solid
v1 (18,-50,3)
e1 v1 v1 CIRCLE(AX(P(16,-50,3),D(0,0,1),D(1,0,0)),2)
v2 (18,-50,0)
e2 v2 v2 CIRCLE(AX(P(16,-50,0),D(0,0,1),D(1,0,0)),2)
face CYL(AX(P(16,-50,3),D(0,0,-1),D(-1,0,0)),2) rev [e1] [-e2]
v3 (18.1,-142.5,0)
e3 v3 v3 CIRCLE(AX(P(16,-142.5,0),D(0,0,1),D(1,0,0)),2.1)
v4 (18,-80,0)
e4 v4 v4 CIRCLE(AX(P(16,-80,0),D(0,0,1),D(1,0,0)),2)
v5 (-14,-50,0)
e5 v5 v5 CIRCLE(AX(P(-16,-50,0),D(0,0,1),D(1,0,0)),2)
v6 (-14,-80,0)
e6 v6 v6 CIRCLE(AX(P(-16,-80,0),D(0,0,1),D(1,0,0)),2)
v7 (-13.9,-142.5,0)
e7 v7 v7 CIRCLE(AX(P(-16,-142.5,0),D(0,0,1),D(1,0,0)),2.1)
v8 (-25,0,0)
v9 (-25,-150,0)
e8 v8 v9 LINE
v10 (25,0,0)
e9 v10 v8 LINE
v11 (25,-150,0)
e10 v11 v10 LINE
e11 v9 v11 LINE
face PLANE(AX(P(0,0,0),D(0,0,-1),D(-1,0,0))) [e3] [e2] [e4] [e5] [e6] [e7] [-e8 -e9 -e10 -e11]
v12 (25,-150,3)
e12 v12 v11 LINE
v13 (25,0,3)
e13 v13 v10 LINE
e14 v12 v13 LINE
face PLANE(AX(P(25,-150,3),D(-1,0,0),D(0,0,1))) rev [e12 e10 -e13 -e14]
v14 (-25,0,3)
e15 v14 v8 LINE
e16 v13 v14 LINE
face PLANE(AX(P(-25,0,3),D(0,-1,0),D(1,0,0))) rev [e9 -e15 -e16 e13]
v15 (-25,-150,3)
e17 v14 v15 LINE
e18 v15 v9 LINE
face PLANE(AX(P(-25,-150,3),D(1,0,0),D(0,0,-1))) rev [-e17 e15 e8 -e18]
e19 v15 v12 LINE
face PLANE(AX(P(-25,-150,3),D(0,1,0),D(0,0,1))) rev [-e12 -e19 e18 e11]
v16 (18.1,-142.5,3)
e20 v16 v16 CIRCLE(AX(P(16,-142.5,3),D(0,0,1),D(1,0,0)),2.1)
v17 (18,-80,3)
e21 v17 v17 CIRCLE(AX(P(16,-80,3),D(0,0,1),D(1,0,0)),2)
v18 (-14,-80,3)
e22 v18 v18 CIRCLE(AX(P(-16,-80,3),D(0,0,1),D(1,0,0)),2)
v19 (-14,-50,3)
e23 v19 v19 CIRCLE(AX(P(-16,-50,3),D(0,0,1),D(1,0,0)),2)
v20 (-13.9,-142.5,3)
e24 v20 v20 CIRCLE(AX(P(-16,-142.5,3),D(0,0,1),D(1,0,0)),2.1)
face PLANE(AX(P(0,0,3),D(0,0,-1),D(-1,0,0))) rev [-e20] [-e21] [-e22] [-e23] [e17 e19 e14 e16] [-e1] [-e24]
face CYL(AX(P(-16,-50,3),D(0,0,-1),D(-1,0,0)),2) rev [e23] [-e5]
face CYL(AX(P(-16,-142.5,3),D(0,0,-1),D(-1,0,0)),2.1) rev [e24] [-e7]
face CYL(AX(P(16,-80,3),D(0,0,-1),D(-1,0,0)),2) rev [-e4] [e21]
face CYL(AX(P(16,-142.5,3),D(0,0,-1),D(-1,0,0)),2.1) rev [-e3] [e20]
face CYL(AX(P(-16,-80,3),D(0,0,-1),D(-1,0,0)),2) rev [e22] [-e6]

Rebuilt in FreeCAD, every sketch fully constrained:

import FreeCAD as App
import Part
import Sketcher
from FreeCAD import Vector
Q = App.Units.Quantity

doc = App.newDocument("Part")
body = doc.addObject("PartDesign::Body", "Body")

# Sketch on XY plane
sketch1 = body.newObject("Sketcher::SketchObject", "Sketch")
sketch1.AttachmentSupport = (doc.getObject("XY_Plane"), [""])
sketch1.MapMode = "FlatFace"
sketch1.addGeometry([
    Part.LineSegment(Vector(-25, 0, 0), Vector(-25, -150, 0)),
    Part.LineSegment(Vector(-25, -150, 0), Vector(25, -150, 0)),
    Part.LineSegment(Vector(25, -150, 0), Vector(25, 0, 0)),
    Part.LineSegment(Vector(25, 0, 0), Vector(-25, 0, 0)),
], False)
sketch1.addConstraint([
    Sketcher.Constraint("Coincident", 0, 2, 1, 1),
    Sketcher.Constraint("Coincident", 1, 2, 2, 1),
    Sketcher.Constraint("Coincident", 2, 2, 3, 1),
    Sketcher.Constraint("Coincident", 3, 2, 0, 1),
    Sketcher.Constraint("Vertical", 0),
    Sketcher.Constraint("Horizontal", 1),
    Sketcher.Constraint("Vertical", 2),
    Sketcher.Constraint("Horizontal", 3),
    Sketcher.Constraint("Symmetric", 2, 2, 3, 2, -1, 1),
    Sketcher.Constraint("DistanceX", 1, 1, 1, 2, Q("50 mm")),
    Sketcher.Constraint("DistanceY", 0, 2, 0, 1, Q("150 mm")),
])
pad1 = body.newObject("PartDesign::Pad", "Pad")
pad1.Profile = sketch1
pad1.Length = 3

# Sketch on XY plane
sketch2 = body.newObject("Sketcher::SketchObject", "Sketch001")
sketch2.AttachmentSupport = (doc.getObject("XY_Plane"), [""])
sketch2.MapMode = "FlatFace"
sketch2.addGeometry([
    Part.Circle(Vector(-16, -50, 0), Vector(0, 0, 1), 2),
    Part.Circle(Vector(16, -50, 0), Vector(0, 0, 1), 2),
    Part.Circle(Vector(-16, -80, 0), Vector(0, 0, 1), 2),
    Part.Circle(Vector(16, -80, 0), Vector(0, 0, 1), 2),
], False)
sketch2.addConstraint([
    Sketcher.Constraint("Equal", 0, 1),
    Sketcher.Constraint("Equal", 1, 2),
    Sketcher.Constraint("Equal", 2, 3),
    Sketcher.Constraint("Symmetric", 0, 3, 1, 3, -2),
    Sketcher.Constraint("Symmetric", 2, 3, 3, 3, -2),
    Sketcher.Constraint("Vertical", 0, 3, 2, 3),
    Sketcher.Constraint("Diameter", 0, Q("4 mm")),
    Sketcher.Constraint("DistanceX", 0, 3, -1, 1, Q("16 mm")),
    Sketcher.Constraint("DistanceY", 0, 3, -1, 1, Q("50 mm")),
    Sketcher.Constraint("DistanceY", 2, 3, -1, 1, Q("80 mm")),
])
pocket1 = body.newObject("PartDesign::Pocket", "Pocket")
pocket1.Profile = sketch2
pocket1.Type = "ThroughAll"
pocket1.Reversed = True

# Sketch on XY plane
sketch3 = body.newObject("Sketcher::SketchObject", "Sketch002")
sketch3.AttachmentSupport = (doc.getObject("XY_Plane"), [""])
sketch3.MapMode = "FlatFace"
sketch3.addGeometry([
    Part.Circle(Vector(-16, -142.5, 0), Vector(0, 0, 1), 2.1),
    Part.Circle(Vector(16, -142.5, 0), Vector(0, 0, 1), 2.1),
], False)
sketch3.addConstraint([
    Sketcher.Constraint("Equal", 0, 1),
    Sketcher.Constraint("Symmetric", 0, 3, 1, 3, -2),
    Sketcher.Constraint("Diameter", 0, Q("4.2 mm")),
    Sketcher.Constraint("DistanceX", 0, 3, -1, 1, Q("16 mm")),
    Sketcher.Constraint("DistanceY", 0, 3, -1, 1, Q("142.5 mm")),
])
pocket2 = body.newObject("PartDesign::Pocket", "Pocket001")
pocket2.Profile = sketch3
pocket2.Type = "ThroughAll"
pocket2.Reversed = True

doc.recompute()
